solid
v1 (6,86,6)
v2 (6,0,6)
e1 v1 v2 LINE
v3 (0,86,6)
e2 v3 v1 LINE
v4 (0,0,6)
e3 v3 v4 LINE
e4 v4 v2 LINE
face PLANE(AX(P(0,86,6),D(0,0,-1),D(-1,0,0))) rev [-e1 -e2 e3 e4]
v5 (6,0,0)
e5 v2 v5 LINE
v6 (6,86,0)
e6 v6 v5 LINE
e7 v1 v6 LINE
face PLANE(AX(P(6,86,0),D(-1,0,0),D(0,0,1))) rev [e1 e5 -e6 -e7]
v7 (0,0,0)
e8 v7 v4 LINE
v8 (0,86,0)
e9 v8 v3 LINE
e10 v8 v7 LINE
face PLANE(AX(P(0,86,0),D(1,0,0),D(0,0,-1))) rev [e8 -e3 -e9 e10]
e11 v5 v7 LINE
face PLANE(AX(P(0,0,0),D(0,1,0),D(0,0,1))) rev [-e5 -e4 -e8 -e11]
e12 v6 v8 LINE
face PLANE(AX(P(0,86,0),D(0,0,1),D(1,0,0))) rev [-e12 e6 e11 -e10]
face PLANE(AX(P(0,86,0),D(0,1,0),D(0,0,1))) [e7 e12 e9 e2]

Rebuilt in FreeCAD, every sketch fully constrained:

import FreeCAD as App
import Part
import Sketcher

V = App.Vector

doc = App.newDocument("Part")
params = doc.addObject("Spreadsheet::Sheet", "Params")
for row, (alias, value) in enumerate([
    ("sketch1_width", "6 mm"),
    ("pad1_length", "86 mm"),
], start=1):
    params.set(f"A{row}", alias)
    params.set(f"B{row}", "=" + value)
    params.setAlias(f"B{row}", alias)

body = doc.addObject("PartDesign::Body", "Body")

sketch1 = body.newObject("Sketcher::SketchObject", "Sketch")
sketch1.AttachmentSupport = (doc.getObject("XZ_Plane"), [""])
sketch1.MapMode = "FlatFace"
sketch1.addGeometry(Part.LineSegment(V(0, 0, 0), V(0, 6, 0)), False)
sketch1.addGeometry(Part.LineSegment(V(0, 6, 0), V(6, 6, 0)), False)
sketch1.addGeometry(Part.LineSegment(V(6, 6, 0), V(6, 0, 0)), False)
sketch1.addGeometry(Part.LineSegment(V(6, 0, 0), V(0, 0, 0)), False)
sketch1.addConstraint(Sketcher.Constraint("Coincident", 0, 2, 1, 1))
sketch1.addConstraint(Sketcher.Constraint("Coincident", 1, 2, 2, 1))
sketch1.addConstraint(Sketcher.Constraint("Coincident", 2, 2, 3, 1))
sketch1.addConstraint(Sketcher.Constraint("Coincident", 3, 2, 0, 1))
sketch1.addConstraint(Sketcher.Constraint("Vertical", 0))
sketch1.addConstraint(Sketcher.Constraint("Horizontal", 1))
sketch1.addConstraint(Sketcher.Constraint("Vertical", 2))
sketch1.addConstraint(Sketcher.Constraint("Horizontal", 3))
sketch1.addConstraint(Sketcher.Constraint("Coincident", 3, 2, -1, 1))
sketch1.addConstraint(Sketcher.Constraint("Equal", 3, 0))
sketch1.addConstraint(Sketcher.Constraint("DistanceX", 1, 1, 1, 2, 6.0))
sketch1.setExpression("Constraints[10]", "Params.sketch1_width")
pad1 = body.newObject("PartDesign::Pad", "Pad")
pad1.Profile = sketch1
pad1.setExpression("Length", "Params.pad1_length")
pad1.Reversed = True

doc.recompute()
